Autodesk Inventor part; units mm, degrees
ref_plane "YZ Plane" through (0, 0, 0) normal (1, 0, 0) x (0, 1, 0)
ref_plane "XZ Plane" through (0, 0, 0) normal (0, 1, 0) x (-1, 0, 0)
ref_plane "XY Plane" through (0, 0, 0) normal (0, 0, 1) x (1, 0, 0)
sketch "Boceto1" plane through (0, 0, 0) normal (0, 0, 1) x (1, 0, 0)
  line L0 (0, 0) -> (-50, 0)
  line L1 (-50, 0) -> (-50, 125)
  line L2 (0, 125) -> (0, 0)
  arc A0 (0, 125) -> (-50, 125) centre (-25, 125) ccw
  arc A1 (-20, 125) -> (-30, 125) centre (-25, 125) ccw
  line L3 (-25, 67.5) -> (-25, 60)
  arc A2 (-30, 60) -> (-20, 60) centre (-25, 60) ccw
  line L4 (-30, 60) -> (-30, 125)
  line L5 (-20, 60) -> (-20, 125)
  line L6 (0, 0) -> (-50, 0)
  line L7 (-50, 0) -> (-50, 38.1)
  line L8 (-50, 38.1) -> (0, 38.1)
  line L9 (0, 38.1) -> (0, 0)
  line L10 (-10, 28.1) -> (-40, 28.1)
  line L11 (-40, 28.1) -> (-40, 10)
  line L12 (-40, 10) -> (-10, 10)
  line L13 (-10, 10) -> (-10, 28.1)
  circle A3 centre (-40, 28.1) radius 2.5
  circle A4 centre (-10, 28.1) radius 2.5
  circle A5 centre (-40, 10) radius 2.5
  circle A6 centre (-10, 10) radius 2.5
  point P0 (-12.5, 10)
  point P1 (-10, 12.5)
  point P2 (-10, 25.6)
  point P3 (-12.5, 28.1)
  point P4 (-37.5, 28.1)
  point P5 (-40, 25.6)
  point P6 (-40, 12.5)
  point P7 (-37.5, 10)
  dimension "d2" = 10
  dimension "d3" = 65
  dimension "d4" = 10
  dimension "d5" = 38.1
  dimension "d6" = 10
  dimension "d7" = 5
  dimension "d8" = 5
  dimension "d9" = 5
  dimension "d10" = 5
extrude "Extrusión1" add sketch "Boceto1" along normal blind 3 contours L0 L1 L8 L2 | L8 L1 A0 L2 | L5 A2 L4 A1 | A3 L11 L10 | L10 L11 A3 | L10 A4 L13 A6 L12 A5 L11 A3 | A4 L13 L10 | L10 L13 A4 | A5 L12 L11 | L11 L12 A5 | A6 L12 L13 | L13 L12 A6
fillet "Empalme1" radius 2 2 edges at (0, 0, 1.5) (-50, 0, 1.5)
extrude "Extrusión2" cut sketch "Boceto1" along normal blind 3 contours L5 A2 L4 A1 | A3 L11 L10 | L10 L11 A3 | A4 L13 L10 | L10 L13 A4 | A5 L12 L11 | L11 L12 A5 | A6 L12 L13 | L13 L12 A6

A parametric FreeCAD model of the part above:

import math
import FreeCAD as App
import Part
import Sketcher


def edges_at(feature, points):
    """Names of the edges that pass closest to the given points."""
    edges = feature.Shape.Edges
    near = lambda p: min(range(len(edges)), key=lambda i: edges[i].distToShape(Part.Vertex(*p))[0])
    return sorted({f"Edge{near(p) + 1}" for p in points})

doc = App.newDocument("Part")
body = doc.addObject("PartDesign::Body", "Body")

sketch1 = body.newObject("Sketcher::SketchObject", "Sketch")
sketch1.AttachmentSupport = (doc.getObject("XY_Plane"), [""])
sketch1.MapMode = "FlatFace"
sketch1.addGeometry(Part.LineSegment(App.Vector(-50, 0, 0), App.Vector(0, 0, 0)), False)
sketch1.addGeometry(Part.LineSegment(App.Vector(0, 0, 0), App.Vector(0, 125, 0)), False)
sketch1.addGeometry(Part.ArcOfCircle(Part.Circle(App.Vector(-25, 125, 0), App.Vector(0, 0, 1), 25), math.radians(0), math.radians(180)), False)
sketch1.addGeometry(Part.LineSegment(App.Vector(-50, 125, 0), App.Vector(-50, 0, 0)), False)
sketch1.addConstraint(Sketcher.Constraint("Coincident", 0, 2, 1, 1))
sketch1.addConstraint(Sketcher.Constraint("Tangent", 1, 2, 2, 1))
sketch1.addConstraint(Sketcher.Constraint("Tangent", 2, 2, 3, 1))
sketch1.addConstraint(Sketcher.Constraint("Coincident", 3, 2, 0, 1))
sketch1.addConstraint(Sketcher.Constraint("Horizontal", 0))
sketch1.addConstraint(Sketcher.Constraint("Vertical", 1))
sketch1.addConstraint(Sketcher.Constraint("Vertical", 3))
sketch1.addConstraint(Sketcher.Constraint("Coincident", 0, 2, -1, 1))
sketch1.addConstraint(Sketcher.Constraint("Radius", 2, 25.0))
sketch1.addConstraint(Sketcher.Constraint("DistanceY", 1, 1, 1, 2, 125.0))
pad1 = body.newObject("PartDesign::Pad", "Pad")
pad1.Profile = sketch1
pad1.Length = 3
doc.recompute()

fillet = body.newObject("PartDesign::Fillet", "Fillet")
fillet.Base = (pad1, edges_at(pad1, [(0, 0, 1.5), (-50, 0, 1.5)]))
fillet.Radius = 2

sketch2 = body.newObject("Sketcher::SketchObject", "Sketch001")
sketch2.AttachmentSupport = (doc.getObject("XY_Plane"), [""])
sketch2.MapMode = "FlatFace"
sketch2.addGeometry(Part.LineSegment(App.Vector(-20, 60, 0), App.Vector(-20, 125, 0)), False)
sketch2.addGeometry(Part.ArcOfCircle(Part.Circle(App.Vector(-25, 125, 0), App.Vector(0, 0, 1), 5), math.radians(0), math.radians(180)), False)
sketch2.addGeometry(Part.LineSegment(App.Vector(-30, 125, 0), App.Vector(-30, 60, 0)), False)
sketch2.addGeometry(Part.ArcOfCircle(Part.Circle(App.Vector(-25, 60, 0), App.Vector(0, 0, 1), 5), math.radians(180), math.radians(360)), False)
sketch2.addGeometry(Part.Circle(App.Vector(-40, 28.1, 0), App.Vector(0, 0, 1), 2.5), False)
sketch2.addGeometry(Part.Circle(App.Vector(-10, 28.1, 0), App.Vector(0, 0, 1), 2.5), False)
sketch2.addGeometry(Part.Circle(App.Vector(-40, 10, 0), App.Vector(0, 0, 1), 2.5), False)
sketch2.addGeometry(Part.Circle(App.Vector(-10, 10, 0), App.Vector(0, 0, 1), 2.5), False)
sketch2.addConstraint(Sketcher.Constraint("Tangent", 0, 2, 1, 1))
sketch2.addConstraint(Sketcher.Constraint("Tangent", 1, 2, 2, 1))
sketch2.addConstraint(Sketcher.Constraint("Tangent", 2, 2, 3, 1))
sketch2.addConstraint(Sketcher.Constraint("Tangent", 3, 2, 0, 1))
sketch2.addConstraint(Sketcher.Constraint("Vertical", 0))
sketch2.addConstraint(Sketcher.Constraint("Vertical", 2))
sketch2.addConstraint(Sketcher.Constraint("Equal", 4, 5))
sketch2.addConstraint(Sketcher.Constraint("Equal", 5, 6))
sketch2.addConstraint(Sketcher.Constraint("Equal", 6, 7))
sketch2.addConstraint(Sketcher.Constraint("Horizontal", 4, 3, 5, 3))
sketch2.addConstraint(Sketcher.Constraint("Horizontal", 6, 3, 7, 3))
sketch2.addConstraint(Sketcher.Constraint("Vertical", 4, 3, 6, 3))
sketch2.addConstraint(Sketcher.Constraint("Vertical", 5, 3, 7, 3))
sketch2.addConstraint(Sketcher.Constraint("Diameter", 4, 5.0))
sketch2.addConstraint(Sketcher.Constraint("Radius", 1, 5.0))
sketch2.addConstraint(Sketcher.Constraint("DistanceY", 0, 1, 0, 2, 65.0))
sketch2.addConstraint(Sketcher.Constraint("DistanceX", 5, 3, -1, 1, 10.0))
sketch2.addConstraint(Sketcher.Constraint("DistanceY", -1, 1, 6, 3, 10.0))
sketch2.addConstraint(Sketcher.Constraint("DistanceX", 0, 2, 5, 3, 10.0))
sketch2.addConstraint(Sketcher.Constraint("DistanceX", 4, 3, 1, 2, 10.0))
sketch2.addConstraint(Sketcher.Constraint("DistanceY", -1, 1, 1, 3, 125.0))
sketch2.addConstraint(Sketcher.Constraint("DistanceY", -1, 1, 4, 3, 28.1))
pocket1 = body.newObject("PartDesign::Pocket", "Pocket")
pocket1.Profile = sketch2
pocket1.Length = 3
pocket1.Reversed = True

doc.recompute()
